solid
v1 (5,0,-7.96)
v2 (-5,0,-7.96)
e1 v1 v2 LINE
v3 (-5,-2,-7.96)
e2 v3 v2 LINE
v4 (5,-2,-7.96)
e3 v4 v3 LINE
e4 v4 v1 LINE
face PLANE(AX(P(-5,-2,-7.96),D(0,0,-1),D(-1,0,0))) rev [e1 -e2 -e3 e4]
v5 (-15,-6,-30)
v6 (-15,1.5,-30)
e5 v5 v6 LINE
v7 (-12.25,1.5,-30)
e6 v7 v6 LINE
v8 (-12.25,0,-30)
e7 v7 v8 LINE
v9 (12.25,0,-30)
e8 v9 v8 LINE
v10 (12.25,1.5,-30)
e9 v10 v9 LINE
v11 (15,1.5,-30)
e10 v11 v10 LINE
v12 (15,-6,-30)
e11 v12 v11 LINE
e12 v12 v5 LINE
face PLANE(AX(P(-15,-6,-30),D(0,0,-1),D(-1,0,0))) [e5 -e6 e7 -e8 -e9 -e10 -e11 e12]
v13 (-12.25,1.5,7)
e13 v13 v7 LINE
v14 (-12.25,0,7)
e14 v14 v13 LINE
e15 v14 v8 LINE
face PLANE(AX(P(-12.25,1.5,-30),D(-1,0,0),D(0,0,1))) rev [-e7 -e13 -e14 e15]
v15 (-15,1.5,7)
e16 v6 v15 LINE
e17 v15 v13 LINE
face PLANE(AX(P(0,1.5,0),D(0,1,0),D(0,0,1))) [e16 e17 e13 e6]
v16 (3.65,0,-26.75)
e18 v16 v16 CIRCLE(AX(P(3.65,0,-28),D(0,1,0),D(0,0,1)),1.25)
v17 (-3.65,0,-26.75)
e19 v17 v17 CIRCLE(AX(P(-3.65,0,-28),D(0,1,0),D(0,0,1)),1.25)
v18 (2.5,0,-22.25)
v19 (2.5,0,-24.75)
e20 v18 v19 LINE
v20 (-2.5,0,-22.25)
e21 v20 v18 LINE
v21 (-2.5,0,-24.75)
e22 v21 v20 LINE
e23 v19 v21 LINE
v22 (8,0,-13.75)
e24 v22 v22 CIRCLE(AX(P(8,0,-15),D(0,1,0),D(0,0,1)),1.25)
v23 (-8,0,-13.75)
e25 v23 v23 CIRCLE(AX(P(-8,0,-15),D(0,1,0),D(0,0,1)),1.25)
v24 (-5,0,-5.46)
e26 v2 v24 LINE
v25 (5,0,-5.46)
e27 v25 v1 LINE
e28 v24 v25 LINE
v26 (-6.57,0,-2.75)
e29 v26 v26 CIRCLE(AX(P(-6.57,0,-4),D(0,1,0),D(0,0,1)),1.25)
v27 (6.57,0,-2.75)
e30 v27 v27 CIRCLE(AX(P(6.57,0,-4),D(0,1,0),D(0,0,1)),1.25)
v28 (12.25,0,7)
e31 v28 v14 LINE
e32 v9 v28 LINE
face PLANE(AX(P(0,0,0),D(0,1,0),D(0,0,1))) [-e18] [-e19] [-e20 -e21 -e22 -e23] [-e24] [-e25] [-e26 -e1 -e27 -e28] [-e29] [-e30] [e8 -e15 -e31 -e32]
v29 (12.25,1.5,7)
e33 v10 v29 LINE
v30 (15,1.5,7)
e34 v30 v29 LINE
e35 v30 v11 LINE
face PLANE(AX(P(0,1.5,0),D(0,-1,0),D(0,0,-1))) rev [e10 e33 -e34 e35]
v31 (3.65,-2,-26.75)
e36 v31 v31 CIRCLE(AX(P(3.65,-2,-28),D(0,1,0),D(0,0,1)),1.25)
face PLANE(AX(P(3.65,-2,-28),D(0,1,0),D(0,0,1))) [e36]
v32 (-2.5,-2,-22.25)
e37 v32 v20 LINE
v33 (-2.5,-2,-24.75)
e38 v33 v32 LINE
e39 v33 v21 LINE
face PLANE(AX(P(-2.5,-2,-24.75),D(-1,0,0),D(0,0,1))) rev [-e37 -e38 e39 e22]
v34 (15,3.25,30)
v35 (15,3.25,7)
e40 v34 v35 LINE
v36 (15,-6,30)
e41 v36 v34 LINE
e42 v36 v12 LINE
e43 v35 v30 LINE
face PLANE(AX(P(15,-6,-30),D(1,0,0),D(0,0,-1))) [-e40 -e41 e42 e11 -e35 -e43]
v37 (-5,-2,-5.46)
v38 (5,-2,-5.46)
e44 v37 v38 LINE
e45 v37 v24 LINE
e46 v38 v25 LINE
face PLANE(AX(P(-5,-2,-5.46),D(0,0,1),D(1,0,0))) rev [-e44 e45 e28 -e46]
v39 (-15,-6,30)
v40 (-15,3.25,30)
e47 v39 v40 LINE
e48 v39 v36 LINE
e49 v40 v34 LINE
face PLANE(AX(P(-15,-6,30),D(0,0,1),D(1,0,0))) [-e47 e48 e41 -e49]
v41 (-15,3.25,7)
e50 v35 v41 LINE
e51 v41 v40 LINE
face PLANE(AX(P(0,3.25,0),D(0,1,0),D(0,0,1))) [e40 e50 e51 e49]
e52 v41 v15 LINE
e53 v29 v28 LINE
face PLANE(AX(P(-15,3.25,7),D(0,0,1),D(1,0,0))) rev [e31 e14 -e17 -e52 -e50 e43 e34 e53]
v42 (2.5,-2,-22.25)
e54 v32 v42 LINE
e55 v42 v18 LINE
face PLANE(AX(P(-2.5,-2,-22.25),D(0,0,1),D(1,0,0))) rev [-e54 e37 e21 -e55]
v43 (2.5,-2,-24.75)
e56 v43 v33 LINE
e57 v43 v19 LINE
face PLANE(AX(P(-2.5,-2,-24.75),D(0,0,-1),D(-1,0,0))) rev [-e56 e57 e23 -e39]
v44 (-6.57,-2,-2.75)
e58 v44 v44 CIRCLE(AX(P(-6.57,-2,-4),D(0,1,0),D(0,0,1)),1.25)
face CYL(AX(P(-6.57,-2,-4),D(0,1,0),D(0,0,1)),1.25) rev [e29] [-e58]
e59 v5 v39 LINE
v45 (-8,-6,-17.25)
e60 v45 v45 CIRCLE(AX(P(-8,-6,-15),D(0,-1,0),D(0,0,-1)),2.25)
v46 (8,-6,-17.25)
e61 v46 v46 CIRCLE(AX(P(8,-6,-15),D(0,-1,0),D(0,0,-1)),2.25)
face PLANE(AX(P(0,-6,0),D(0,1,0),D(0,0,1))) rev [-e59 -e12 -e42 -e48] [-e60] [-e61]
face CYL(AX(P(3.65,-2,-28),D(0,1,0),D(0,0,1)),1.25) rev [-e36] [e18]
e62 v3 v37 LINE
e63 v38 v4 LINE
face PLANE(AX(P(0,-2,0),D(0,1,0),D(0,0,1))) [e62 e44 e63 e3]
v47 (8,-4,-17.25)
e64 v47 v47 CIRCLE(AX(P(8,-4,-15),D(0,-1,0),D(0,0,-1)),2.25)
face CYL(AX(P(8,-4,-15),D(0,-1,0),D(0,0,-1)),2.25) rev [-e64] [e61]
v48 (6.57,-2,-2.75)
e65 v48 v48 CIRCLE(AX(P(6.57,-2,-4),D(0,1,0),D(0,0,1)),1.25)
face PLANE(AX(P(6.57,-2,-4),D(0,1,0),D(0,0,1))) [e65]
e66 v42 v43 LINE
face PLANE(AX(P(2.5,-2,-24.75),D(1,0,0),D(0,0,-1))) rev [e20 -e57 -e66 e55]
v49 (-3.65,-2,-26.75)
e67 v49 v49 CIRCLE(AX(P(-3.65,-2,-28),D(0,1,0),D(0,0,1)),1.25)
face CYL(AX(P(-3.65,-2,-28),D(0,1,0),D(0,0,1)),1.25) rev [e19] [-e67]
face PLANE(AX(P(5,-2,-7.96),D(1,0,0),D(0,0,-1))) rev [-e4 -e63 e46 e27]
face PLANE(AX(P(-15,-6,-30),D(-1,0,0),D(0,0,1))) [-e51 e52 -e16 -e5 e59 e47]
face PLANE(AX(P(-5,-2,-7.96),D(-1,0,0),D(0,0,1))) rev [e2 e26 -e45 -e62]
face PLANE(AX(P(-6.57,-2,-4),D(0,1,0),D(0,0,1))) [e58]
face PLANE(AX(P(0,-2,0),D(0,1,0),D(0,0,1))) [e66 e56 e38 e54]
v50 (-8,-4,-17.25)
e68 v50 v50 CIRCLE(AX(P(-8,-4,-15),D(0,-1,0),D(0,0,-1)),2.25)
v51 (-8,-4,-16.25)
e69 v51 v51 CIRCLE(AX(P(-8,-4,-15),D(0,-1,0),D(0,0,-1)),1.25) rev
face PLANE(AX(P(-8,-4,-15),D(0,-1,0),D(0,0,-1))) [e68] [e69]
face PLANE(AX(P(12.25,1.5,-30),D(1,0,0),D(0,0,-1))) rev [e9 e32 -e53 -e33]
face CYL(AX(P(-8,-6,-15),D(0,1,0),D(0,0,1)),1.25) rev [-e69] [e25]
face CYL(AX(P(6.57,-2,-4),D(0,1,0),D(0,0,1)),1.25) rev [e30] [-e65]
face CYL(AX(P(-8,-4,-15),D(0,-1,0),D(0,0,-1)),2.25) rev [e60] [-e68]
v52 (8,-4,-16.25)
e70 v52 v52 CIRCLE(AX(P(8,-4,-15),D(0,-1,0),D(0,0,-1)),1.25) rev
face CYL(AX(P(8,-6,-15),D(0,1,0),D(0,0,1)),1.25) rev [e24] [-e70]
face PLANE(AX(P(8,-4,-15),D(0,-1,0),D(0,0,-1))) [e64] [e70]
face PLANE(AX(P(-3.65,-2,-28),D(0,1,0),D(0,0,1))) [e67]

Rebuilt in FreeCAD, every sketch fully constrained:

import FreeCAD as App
import Part
import Sketcher
Q = App.Units.Quantity

doc = App.newDocument("Part")
body = doc.addObject("PartDesign::Body", "Body")

sketch1 = body.newObject("Sketcher::SketchObject", "Sketch")
sketch1.AttachmentSupport = (doc.getObject("XZ_Plane"), [""])
sketch1.MapMode = "FlatFace"
sketch1.addGeometry(Part.LineSegment(App.Vector(-15, -30, 0), App.Vector(-15, 30, 0)), False)
sketch1.addGeometry(Part.LineSegment(App.Vector(-15, 30, 0), App.Vector(15, 30, 0)), False)
sketch1.addGeometry(Part.LineSegment(App.Vector(15, 30, 0), App.Vector(15, -30, 0)), False)
sketch1.addGeometry(Part.LineSegment(App.Vector(15, -30, 0), App.Vector(-15, -30, 0)), False)
sketch1.addGeometry(Part.Circle(App.Vector(-8, -15, 0), App.Vector(0, 0, 1), 1.2), False)
sketch1.addGeometry(Part.Circle(App.Vector(8, -15, 0), App.Vector(0, 0, 1), 1.2), False)
sketch1.addConstraint(Sketcher.Constraint("Coincident", 0, 2, 1, 1))
sketch1.addConstraint(Sketcher.Constraint("Coincident", 1, 2, 2, 1))
sketch1.addConstraint(Sketcher.Constraint("Coincident", 2, 2, 3, 1))
sketch1.addConstraint(Sketcher.Constraint("Coincident", 3, 2, 0, 1))
sketch1.addConstraint(Sketcher.Constraint("Vertical", 0))
sketch1.addConstraint(Sketcher.Constraint("Horizontal", 1))
sketch1.addConstraint(Sketcher.Constraint("Vertical", 2))
sketch1.addConstraint(Sketcher.Constraint("Horizontal", 3))
sketch1.addConstraint(Sketcher.Constraint("Equal", 4, 5))
sketch1.addConstraint(Sketcher.Constraint("Symmetric", 0, 2, 2, 2, -1, 1))
sketch1.addConstraint(Sketcher.Constraint("Symmetric", 4, 3, 5, 3, -2))
sketch1.addConstraint(Sketcher.Constraint("Diameter", 4, Q("2.5 mm")))
sketch1.addConstraint(Sketcher.Constraint("DistanceX", 1, 1, 1, 2, Q("30 mm")))
sketch1.addConstraint(Sketcher.Constraint("DistanceY", 0, 1, 0, 2, Q("60 mm")))
sketch1.addConstraint(Sketcher.Constraint("DistanceX", 4, 3, -1, 1, Q("8 mm")))
sketch1.addConstraint(Sketcher.Constraint("DistanceY", 4, 3, -1, 1, Q("15 mm")))
pad1 = body.newObject("PartDesign::Pad", "Pad")
pad1.Profile = sketch1
pad1.Length = 6

sketch2 = body.newObject("Sketcher::SketchObject", "Sketch001")
sketch2.AttachmentSupport = (doc.getObject("XZ_Plane"), [""])
sketch2.MapMode = "FlatFace"
sketch2.AttachmentOffset = App.Placement(App.Vector(0, 0, 6), App.Rotation())
sketch2.addGeometry(Part.Circle(App.Vector(8, -15, 0), App.Vector(0, 0, 1), 2.2), False)
sketch2.addGeometry(Part.Circle(App.Vector(-8, -15, 0), App.Vector(0, 0, 1), 2.2), False)
sketch2.addConstraint(Sketcher.Constraint("Equal", 0, 1))
sketch2.addConstraint(Sketcher.Constraint("Symmetric", 0, 3, 1, 3, -2))
sketch2.addConstraint(Sketcher.Constraint("Diameter", 0, Q("4.5 mm")))
sketch2.addConstraint(Sketcher.Constraint("DistanceX", -1, 1, 0, 3, Q("8 mm")))
sketch2.addConstraint(Sketcher.Constraint("DistanceY", 0, 3, -1, 1, Q("15 mm")))
pocket1 = body.newObject("PartDesign::Pocket", "Pocket")
pocket1.Profile = sketch2
pocket1.Length = 2

sketch3 = body.newObject("Sketcher::SketchObject", "Sketch002")
sketch3.AttachmentSupport = (doc.getObject("XZ_Plane"), [""])
sketch3.MapMode = "FlatFace"
sketch3.addGeometry(Part.LineSegment(App.Vector(-15, -30, 0), App.Vector(-15, 30, 0)), False)
sketch3.addGeometry(Part.LineSegment(App.Vector(-15, 30, 0), App.Vector(-12.2, 30, 0)), False)
sketch3.addGeometry(Part.LineSegment(App.Vector(-12.2, 30, 0), App.Vector(-12.2, -30, 0)), False)
sketch3.addGeometry(Part.LineSegment(App.Vector(-12.2, -30, 0), App.Vector(-15, -30, 0)), False)
sketch3.addGeometry(Part.LineSegment(App.Vector(12.2, -30, 0), App.Vector(12.2, 30, 0)), False)
sketch3.addGeometry(Part.LineSegment(App.Vector(12.2, 30, 0), App.Vector(15, 30, 0)), False)
sketch3.addGeometry(Part.LineSegment(App.Vector(15, 30, 0), App.Vector(15, -30, 0)), False)
sketch3.addGeometry(Part.LineSegment(App.Vector(15, -30, 0), App.Vector(12.2, -30, 0)), False)
sketch3.addConstraint(Sketcher.Constraint("Coincident", 0, 2, 1, 1))
sketch3.addConstraint(Sketcher.Constraint("Coincident", 1, 2, 2, 1))
sketch3.addConstraint(Sketcher.Constraint("Coincident", 2, 2, 3, 1))
sketch3.addConstraint(Sketcher.Constraint("Coincident", 3, 2, 0, 1))
sketch3.addConstraint(Sketcher.Constraint("Coincident", 4, 2, 5, 1))
sketch3.addConstraint(Sketcher.Constraint("Coincident", 5, 2, 6, 1))
sketch3.addConstraint(Sketcher.Constraint("Coincident", 6, 2, 7, 1))
sketch3.addConstraint(Sketcher.Constraint("Coincident", 7, 2, 4, 1))
sketch3.addConstraint(Sketcher.Constraint("Vertical", 0))
sketch3.addConstraint(Sketcher.Constraint("Horizontal", 1))
sketch3.addConstraint(Sketcher.Constraint("Vertical", 2))
sketch3.addConstraint(Sketcher.Constraint("Horizontal", 3))
sketch3.addConstraint(Sketcher.Constraint("Vertical", 4))
sketch3.addConstraint(Sketcher.Constraint("Horizontal", 5))
sketch3.addConstraint(Sketcher.Constraint("Vertical", 6))
sketch3.addConstraint(Sketcher.Constraint("Horizontal", 7))
sketch3.addConstraint(Sketcher.Constraint("Symmetric", 2, 2, 4, 2, -1, 1))
sketch3.addConstraint(Sketcher.Constraint("Symmetric", 0, 2, 6, 2, -1, 1))
sketch3.addConstraint(Sketcher.Constraint("Horizontal", 1, 2, 4, 2))
sketch3.addConstraint(Sketcher.Constraint("DistanceY", 0, 1, 0, 2, Q("60 mm")))
sketch3.addConstraint(Sketcher.Constraint("DistanceX", 0, 2, -1, 1, Q("15 mm")))
sketch3.addConstraint(Sketcher.Constraint("DistanceX", 1, 1, 1, 2, Q("2.75 mm")))
pad2 = body.newObject("PartDesign::Pad", "Pad001")
pad2.Profile = sketch3
pad2.Length = 1.5
pad2.Reversed = True

sketch4 = body.newObject("Sketcher::SketchObject", "Sketch003")
sketch4.AttachmentSupport = (doc.getObject("XZ_Plane"), [""])
sketch4.MapMode = "FlatFace"
sketch4.addGeometry(Part.Circle(App.Vector(-3.6, -28, 0), App.Vector(0, 0, 1), 1.2), False)
sketch4.addGeometry(Part.Circle(App.Vector(3.6, -28, 0), App.Vector(0, 0, 1), 1.2), False)
sketch4.addGeometry(Part.Circle(App.Vector(-6.6, -4, 0), App.Vector(0, 0, 1), 1.2), False)
sketch4.addGeometry(Part.Circle(App.Vector(6.6, -4, 0), App.Vector(0, 0, 1), 1.2), False)
sketch4.addGeometry(Part.LineSegment(App.Vector(-2.5, -24.8, 0), App.Vector(-2.5, -22.2, 0)), False)
sketch4.addGeometry(Part.LineSegment(App.Vector(-2.5, -22.2, 0), App.Vector(2.5, -22.2, 0)), False)
sketch4.addGeometry(Part.LineSegment(App.Vector(2.5, -22.2, 0), App.Vector(2.5, -24.8, 0)), False)
sketch4.addGeometry(Part.LineSegment(App.Vector(2.5, -24.8, 0), App.Vector(-2.5, -24.8, 0)), False)
sketch4.addGeometry(Part.LineSegment(App.Vector(-5, -8, 0), App.Vector(-5, -5.5, 0)), False)
sketch4.addGeometry(Part.LineSegment(App.Vector(-5, -5.5, 0), App.Vector(5, -5.5, 0)), False)
sketch4.addGeometry(Part.LineSegment(App.Vector(5, -5.5, 0), App.Vector(5, -8, 0)), False)
sketch4.addGeometry(Part.LineSegment(App.Vector(5, -8, 0), App.Vector(-5, -8, 0)), False)
sketch4.addConstraint(Sketcher.Constraint("Coincident", 4, 2, 5, 1))
sketch4.addConstraint(Sketcher.Constraint("Coincident", 5, 2, 6, 1))
sketch4.addConstraint(Sketcher.Constraint("Coincident", 6, 2, 7, 1))
sketch4.addConstraint(Sketcher.Constraint("Coincident", 7, 2, 4, 1))
sketch4.addConstraint(Sketcher.Constraint("Coincident", 8, 2, 9, 1))
sketch4.addConstraint(Sketcher.Constraint("Coincident", 9, 2, 10, 1))
sketch4.addConstraint(Sketcher.Constraint("Coincident", 10, 2, 11, 1))
sketch4.addConstraint(Sketcher.Constraint("Coincident", 11, 2, 8, 1))
sketch4.addConstraint(Sketcher.Constraint("Vertical", 4))
sketch4.addConstraint(Sketcher.Constraint("Horizontal", 5))
sketch4.addConstraint(Sketcher.Constraint("Vertical", 6))
sketch4.addConstraint(Sketcher.Constraint("Horizontal", 7))
sketch4.addConstraint(Sketcher.Constraint("Vertical", 8))
sketch4.addConstraint(Sketcher.Constraint("Horizontal", 9))
sketch4.addConstraint(Sketcher.Constraint("Vertical", 10))
sketch4.addConstraint(Sketcher.Constraint("Horizontal", 11))
sketch4.addConstraint(Sketcher.Constraint("Equal", 0, 1))
sketch4.addConstraint(Sketcher.Constraint("Equal", 1, 2))
sketch4.addConstraint(Sketcher.Constraint("Equal", 2, 3))
sketch4.addConstraint(Sketcher.Constraint("Symmetric", 0, 3, 1, 3, -2))
sketch4.addConstraint(Sketcher.Constraint("Symmetric", 2, 3, 3, 3, -2))
sketch4.addConstraint(Sketcher.Constraint("Equal", 6, 8))
sketch4.addConstraint(Sketcher.Constraint("Diameter", 0, Q("2.5 mm")))
sketch4.addConstraint(Sketcher.Constraint("DistanceX", 5, 1, 5, 2, Q("5 mm")))
sketch4.addConstraint(Sketcher.Constraint("DistanceX", 9, 1, 9, 2, Q("10 mm")))
sketch4.addConstraint(Sketcher.Constraint("DistanceY", 4, 1, 4, 2, Q("2.5 mm")))
sketch4.addConstraint(Sketcher.Constraint("DistanceY", 0, 3, -1, 1, Q("28 mm")))
sketch4.addConstraint(Sketcher.Constraint("DistanceY", 2, 3, -1, 1, Q("4 mm")))
sketch4.addConstraint(Sketcher.Constraint("DistanceX", 8, 2, -1, 1, Q("5 mm")))
sketch4.addConstraint(Sketcher.Constraint("DistanceX", 4, 2, -1, 1, Q("2.5 mm")))
sketch4.addConstraint(Sketcher.Constraint("DistanceX", 0, 3, 1, 3, Q("7.3 mm")))
sketch4.addConstraint(Sketcher.Constraint("DistanceX", 2, 3, -1, 1, Q("6.57 mm")))
sketch4.addConstraint(Sketcher.Constraint("DistanceY", 4, 2, -1, 1, Q("22.25 mm")))
sketch4.addConstraint(Sketcher.Constraint("DistanceY", 8, 2, -1, 1, Q("5.46 mm")))
pocket2 = body.newObject("PartDesign::Pocket", "Pocket001")
pocket2.Profile = sketch4
pocket2.Length = 2
pocket2.Reversed = True

sketch5 = body.newObject("Sketcher::SketchObject", "Sketch004")
sketch5.AttachmentSupport = (doc.getObject("XZ_Plane"), [""])
sketch5.MapMode = "FlatFace"
sketch5.addGeometry(Part.LineSegment(App.Vector(-15, 7, 0), App.Vector(-15, 30, 0)), False)
sketch5.addGeometry(Part.LineSegment(App.Vector(-15, 30, 0), App.Vector(15, 30, 0)), False)
sketch5.addGeometry(Part.LineSegment(App.Vector(15, 30, 0), App.Vector(15, 7, 0)), False)
sketch5.addGeometry(Part.LineSegment(App.Vector(15, 7, 0), App.Vector(-15, 7, 0)), False)
sketch5.addConstraint(Sketcher.Constraint("Coincident", 0, 2, 1, 1))
sketch5.addConstraint(Sketcher.Constraint("Coincident", 1, 2, 2, 1))
sketch5.addConstraint(Sketcher.Constraint("Coincident", 2, 2, 3, 1))
sketch5.addConstraint(Sketcher.Constraint("Coincident", 3, 2, 0, 1))
sketch5.addConstraint(Sketcher.Constraint("Vertical", 0))
sketch5.addConstraint(Sketcher.Constraint("Horizontal", 1))
sketch5.addConstraint(Sketcher.Constraint("Vertical", 2))
sketch5.addConstraint(Sketcher.Constraint("Horizontal", 3))
sketch5.addConstraint(Sketcher.Constraint("DistanceX", 1, 1, 1, 2, Q("30 mm")))
sketch5.addConstraint(Sketcher.Constraint("DistanceY", 0, 1, 0, 2, Q("23 mm")))
sketch5.addConstraint(Sketcher.Constraint("DistanceX", 0, 2, -1, 1, Q("15 mm")))
sketch5.addConstraint(Sketcher.Constraint("DistanceY", -1, 1, 0, 2, Q("30 mm")))
pad3 = body.newObject("PartDesign::Pad", "Pad002")
pad3.Profile = sketch5
pad3.Length = 3.25
pad3.Reversed = True

doc.recompute()
